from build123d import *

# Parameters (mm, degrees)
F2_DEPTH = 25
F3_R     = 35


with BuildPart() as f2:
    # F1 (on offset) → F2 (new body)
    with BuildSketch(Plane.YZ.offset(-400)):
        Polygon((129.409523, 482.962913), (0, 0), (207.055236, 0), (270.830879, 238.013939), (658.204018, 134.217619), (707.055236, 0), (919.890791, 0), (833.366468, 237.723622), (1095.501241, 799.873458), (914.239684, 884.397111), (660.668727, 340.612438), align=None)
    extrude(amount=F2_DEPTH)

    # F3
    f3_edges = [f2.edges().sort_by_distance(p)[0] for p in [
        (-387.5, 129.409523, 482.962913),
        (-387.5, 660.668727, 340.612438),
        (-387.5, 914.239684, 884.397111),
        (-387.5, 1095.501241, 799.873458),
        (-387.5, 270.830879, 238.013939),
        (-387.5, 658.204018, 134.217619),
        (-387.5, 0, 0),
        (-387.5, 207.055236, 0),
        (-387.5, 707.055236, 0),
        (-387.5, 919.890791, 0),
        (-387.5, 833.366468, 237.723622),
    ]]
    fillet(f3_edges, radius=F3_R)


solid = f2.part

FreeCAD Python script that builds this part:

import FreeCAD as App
import Part
import Sketcher

V = App.Vector
Q = App.Units.Quantity


def edges_at(feature, points):
    """Names of the edges that pass closest to the given points."""
    edges = feature.Shape.Edges
    near = lambda p: min(range(len(edges)), key=lambda i: edges[i].distToShape(Part.Vertex(*p))[0])
    return sorted({f"Edge{near(p) + 1}" for p in points})

doc = App.newDocument("Part")
body = doc.addObject("PartDesign::Body", "Body")

sketch1 = doc.addObject("Sketcher::SketchObject", "Sketch")
body.addObject(sketch1)
sketch1.AttachmentSupport = (doc.YZ_Plane, [""])
sketch1.MapMode = "FlatFace"
sketch1.AttachmentOffset = App.Placement(V(0, 0, -400), App.Rotation())
sketch1.addGeometry([
    Part.LineSegment(V(129, 483, 0), V(0, 0, 0)),
    Part.LineSegment(V(0, 0, 0), V(207, 0, 0)),
    Part.LineSegment(V(207, 0, 0), V(271, 238, 0)),
    Part.LineSegment(V(271, 238, 0), V(658, 134, 0)),
    Part.LineSegment(V(658, 134, 0), V(707, 0, 0)),
    Part.LineSegment(V(707, 0, 0), V(920, 0, 0)),
    Part.LineSegment(V(920, 0, 0), V(833, 238, 0)),
    Part.LineSegment(V(833, 238, 0), V(1096, 800, 0)),
    Part.LineSegment(V(1096, 800, 0), V(914, 884, 0)),
    Part.LineSegment(V(914, 884, 0), V(661, 341, 0)),
    Part.LineSegment(V(661, 341, 0), V(129, 483, 0)),
], False)
sketch1.addConstraint([
    Sketcher.Constraint("Coincident", 0, 2, 1, 1),
    Sketcher.Constraint("Coincident", 1, 2, 2, 1),
    Sketcher.Constraint("Coincident", 2, 2, 3, 1),
    Sketcher.Constraint("Coincident", 3, 2, 4, 1),
    Sketcher.Constraint("Coincident", 4, 2, 5, 1),
    Sketcher.Constraint("Coincident", 5, 2, 6, 1),
    Sketcher.Constraint("Coincident", 6, 2, 7, 1),
    Sketcher.Constraint("Coincident", 7, 2, 8, 1),
    Sketcher.Constraint("Coincident", 8, 2, 9, 1),
    Sketcher.Constraint("Coincident", 9, 2, 10, 1),
    Sketcher.Constraint("Coincident", 10, 2, 0, 1),
    Sketcher.Constraint("Horizontal", 1),
    Sketcher.Constraint("Horizontal", 5),
    Sketcher.Constraint("Coincident", 0, 2, -1, 1),
    Sketcher.Constraint("PointOnObject", 4, 2, -1),
    Sketcher.Constraint("Parallel", 0, 2),
    Sketcher.Constraint("Perpendicular", 2, 3),
    Sketcher.Constraint("Parallel", 4, 6),
    Sketcher.Constraint("Perpendicular", 7, 8),
    Sketcher.Constraint("Perpendicular", 8, 9),
    Sketcher.Constraint("Parallel", 3, 10),
    Sketcher.Constraint("Angle", 0, Q("-105 deg")),
    Sketcher.Constraint("Angle", 4, Q("-70 deg")),
    Sketcher.Constraint("Angle", 7, Q("65 deg")),
    Sketcher.Constraint("Distance", 0, Q("500 mm")),
    Sketcher.Constraint("Distance", 8, Q("200 mm")),
    Sketcher.Constraint("Distance", 9, Q("600.000001 mm")),
    Sketcher.Constraint("Distance", 10, Q("550 mm")),
    Sketcher.Constraint("DistanceX", 1, 2, 4, 2, Q("500 mm")),
    Sketcher.Constraint("DistanceY", 2, 2, 9, 2, Q("102.598499 mm")),
    Sketcher.Constraint("DistanceX", 1, 1, 1, 2, Q("207.055236 mm")),
    Sketcher.Constraint("DistanceX", 5, 1, 5, 2, Q("212.835555 mm")),
])
pad1 = doc.addObject("PartDesign::Pad", "Pad")
body.addObject(pad1)
pad1.Profile = sketch1
pad1.Length = 25
doc.recompute()

fillet = doc.addObject("PartDesign::Fillet", "Fillet")
body.addObject(fillet)
fillet.Base = (pad1, edges_at(pad1, [
    (-387.5, 129.41, 482.963),
    (-387.5, 660.669, 340.612),
    (-387.5, 914.24, 884.397),
    (-387.5, 1095.501, 799.873),
    (-387.5, 270.831, 238.014),
    (-387.5, 658.204, 134.218),
    (-387.5, 0, 0),
    (-387.5, 207.055, 0),
    (-387.5, 707.055, 0),
    (-387.5, 919.891, 0),
    (-387.5, 833.366, 237.724),
]))
fillet.Radius = 35

doc.recompute()
